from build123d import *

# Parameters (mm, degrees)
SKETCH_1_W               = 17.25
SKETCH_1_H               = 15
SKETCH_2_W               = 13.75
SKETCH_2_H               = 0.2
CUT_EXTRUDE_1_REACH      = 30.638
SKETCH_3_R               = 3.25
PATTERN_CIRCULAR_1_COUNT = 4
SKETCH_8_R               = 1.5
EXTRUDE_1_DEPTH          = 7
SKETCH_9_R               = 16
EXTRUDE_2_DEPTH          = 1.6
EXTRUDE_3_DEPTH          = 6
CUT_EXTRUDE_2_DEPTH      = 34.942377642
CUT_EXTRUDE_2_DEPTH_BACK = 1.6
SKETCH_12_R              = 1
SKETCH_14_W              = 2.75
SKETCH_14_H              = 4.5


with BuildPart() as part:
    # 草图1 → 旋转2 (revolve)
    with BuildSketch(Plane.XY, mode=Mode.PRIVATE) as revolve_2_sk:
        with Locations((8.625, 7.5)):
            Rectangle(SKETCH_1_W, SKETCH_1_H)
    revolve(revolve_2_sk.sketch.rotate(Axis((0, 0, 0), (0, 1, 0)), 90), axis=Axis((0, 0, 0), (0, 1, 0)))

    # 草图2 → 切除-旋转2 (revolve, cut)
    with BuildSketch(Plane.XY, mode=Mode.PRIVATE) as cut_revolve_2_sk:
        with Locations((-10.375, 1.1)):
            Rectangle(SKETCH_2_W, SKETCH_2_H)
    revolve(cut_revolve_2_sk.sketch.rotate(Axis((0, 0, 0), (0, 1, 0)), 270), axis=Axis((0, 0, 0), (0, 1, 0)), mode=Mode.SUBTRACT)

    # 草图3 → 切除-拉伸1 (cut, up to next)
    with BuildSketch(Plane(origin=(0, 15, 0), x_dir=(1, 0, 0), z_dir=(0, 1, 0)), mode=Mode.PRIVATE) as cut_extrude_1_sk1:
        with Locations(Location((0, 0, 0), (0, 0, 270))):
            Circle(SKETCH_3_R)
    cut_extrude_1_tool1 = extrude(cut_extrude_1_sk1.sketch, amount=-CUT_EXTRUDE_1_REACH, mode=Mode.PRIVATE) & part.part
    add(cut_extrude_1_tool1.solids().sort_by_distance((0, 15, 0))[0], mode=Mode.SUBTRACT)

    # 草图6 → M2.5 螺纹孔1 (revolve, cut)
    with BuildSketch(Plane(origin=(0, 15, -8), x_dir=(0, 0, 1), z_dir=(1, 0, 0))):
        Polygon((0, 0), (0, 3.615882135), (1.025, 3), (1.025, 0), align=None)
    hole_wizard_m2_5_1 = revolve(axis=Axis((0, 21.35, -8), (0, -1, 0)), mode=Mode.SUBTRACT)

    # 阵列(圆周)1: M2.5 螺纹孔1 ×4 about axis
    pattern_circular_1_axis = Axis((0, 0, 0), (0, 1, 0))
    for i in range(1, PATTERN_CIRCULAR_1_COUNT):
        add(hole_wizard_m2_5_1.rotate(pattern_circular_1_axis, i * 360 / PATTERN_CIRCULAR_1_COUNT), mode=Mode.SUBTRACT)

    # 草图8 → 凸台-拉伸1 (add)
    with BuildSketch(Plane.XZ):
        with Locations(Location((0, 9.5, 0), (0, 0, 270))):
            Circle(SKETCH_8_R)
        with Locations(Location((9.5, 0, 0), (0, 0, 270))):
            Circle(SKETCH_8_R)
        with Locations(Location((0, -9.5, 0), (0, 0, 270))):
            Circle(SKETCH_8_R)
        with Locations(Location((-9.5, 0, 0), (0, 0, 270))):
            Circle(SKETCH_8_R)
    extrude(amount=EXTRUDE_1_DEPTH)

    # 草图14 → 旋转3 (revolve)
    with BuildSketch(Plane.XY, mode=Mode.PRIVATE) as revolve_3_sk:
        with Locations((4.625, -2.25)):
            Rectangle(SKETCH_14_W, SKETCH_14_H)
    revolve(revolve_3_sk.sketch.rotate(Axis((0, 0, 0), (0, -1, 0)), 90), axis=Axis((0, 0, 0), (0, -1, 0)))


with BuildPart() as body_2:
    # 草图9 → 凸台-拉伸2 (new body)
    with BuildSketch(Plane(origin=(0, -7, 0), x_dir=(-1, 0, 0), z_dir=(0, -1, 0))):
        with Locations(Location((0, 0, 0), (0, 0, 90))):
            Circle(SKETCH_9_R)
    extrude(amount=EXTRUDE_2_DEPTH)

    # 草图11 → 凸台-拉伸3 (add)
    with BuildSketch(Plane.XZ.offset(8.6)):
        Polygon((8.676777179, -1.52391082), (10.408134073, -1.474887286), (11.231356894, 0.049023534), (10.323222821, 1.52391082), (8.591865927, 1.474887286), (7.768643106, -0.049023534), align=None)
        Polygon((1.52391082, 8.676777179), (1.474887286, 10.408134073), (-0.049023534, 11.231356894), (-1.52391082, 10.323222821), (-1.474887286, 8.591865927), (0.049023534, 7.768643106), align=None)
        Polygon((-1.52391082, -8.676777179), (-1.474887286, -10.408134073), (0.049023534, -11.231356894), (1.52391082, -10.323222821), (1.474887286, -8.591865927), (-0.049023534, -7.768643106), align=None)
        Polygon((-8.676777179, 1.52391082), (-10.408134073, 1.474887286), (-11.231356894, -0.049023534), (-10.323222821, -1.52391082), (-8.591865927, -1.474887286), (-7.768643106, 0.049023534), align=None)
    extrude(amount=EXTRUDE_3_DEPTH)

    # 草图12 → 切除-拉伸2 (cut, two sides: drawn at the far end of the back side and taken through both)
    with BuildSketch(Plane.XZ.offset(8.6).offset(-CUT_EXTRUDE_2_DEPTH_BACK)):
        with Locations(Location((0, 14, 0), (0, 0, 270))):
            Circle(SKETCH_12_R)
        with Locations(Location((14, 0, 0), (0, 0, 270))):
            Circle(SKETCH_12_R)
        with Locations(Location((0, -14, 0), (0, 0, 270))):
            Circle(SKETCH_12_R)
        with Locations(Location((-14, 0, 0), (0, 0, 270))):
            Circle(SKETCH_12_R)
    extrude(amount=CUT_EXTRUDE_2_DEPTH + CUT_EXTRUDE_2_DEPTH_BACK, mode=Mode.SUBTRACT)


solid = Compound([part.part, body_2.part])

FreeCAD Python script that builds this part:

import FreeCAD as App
import Part
import Sketcher

V = App.Vector
Q = App.Units.Quantity

doc = App.newDocument("Part")
params = doc.addObject("Spreadsheet::Sheet", "Params")
for row, (alias, value) in enumerate([
    ("sketch1_height", "15 mm"),
    ("sketch1_width", "17.25 mm"),
    ("revolution_angle", "360 deg"),
    ("sketch2_height", "0.2 mm"),
    ("sketch2_width", "13.75 mm"),
    ("groove_angle", "360 deg"),
    ("sketch3_diameter", "6.5 mm"),
    ("sketch4_width", "3 mm"),
    ("groove2_angle", "360 deg"),
    ("sketch5_diameter", "3 mm"),
    ("pad1_length", "7 mm"),
    ("sketch6_height", "4.5 mm"),
    ("sketch6_width", "2.75 mm"),
    ("revolution2_angle", "360 deg"),
    ("sketch7_diameter", "32 mm"),
    ("pad2_length", "1.6 mm"),
    ("pad3_length", "6 mm"),
    ("sketch9_diameter", "2 mm"),
], start=1):
    params.set(f"A{row}", alias)
    params.set(f"B{row}", "=" + value)
    params.setAlias(f"B{row}", alias)

body = doc.addObject("PartDesign::Body", "Body")

# Sketch on XY plane
sketch1 = body.newObject("Sketcher::SketchObject", "Sketch")
sketch1.AttachmentSupport = (doc.getObject("XY_Plane"), [""])
sketch1.MapMode = "FlatFace"
sketch1.addGeometry([
    Part.LineSegment(V(0, 15, 0), V(0, 0, 0)),
    Part.LineSegment(V(0, 0, 0), V(17.25, 0, 0)),
    Part.LineSegment(V(17.25, 0, 0), V(17.25, 15, 0)),
    Part.LineSegment(V(17.25, 15, 0), V(0, 15, 0)),
], False)
sketch1.addConstraint([
    Sketcher.Constraint("Coincident", 0, 2, 1, 1),
    Sketcher.Constraint("Coincident", 1, 2, 2, 1),
    Sketcher.Constraint("Coincident", 2, 2, 3, 1),
    Sketcher.Constraint("Coincident", 3, 2, 0, 1),
    Sketcher.Constraint("Vertical", 0),
    Sketcher.Constraint("Horizontal", 1),
    Sketcher.Constraint("Vertical", 2),
    Sketcher.Constraint("Horizontal", 3),
    Sketcher.Constraint("Coincident", 0, 2, -1, 1),
    Sketcher.Constraint("DistanceY", 0, 2, 0, 1, 15.0),
    Sketcher.Constraint("DistanceX", 1, 1, 1, 2, 17.25),
])
sketch1.setExpression("Constraints[9]", "Params.sketch1_height")
sketch1.setExpression("Constraints[10]", "Params.sketch1_width")
revolution = body.newObject("PartDesign::Revolution", "Revolution")
revolution.Profile = sketch1
revolution.ReferenceAxis = (sketch1, ["V_Axis"])
revolution.setExpression("Angle", "Params.revolution_angle")

# Sketch on XY plane
sketch2 = body.newObject("Sketcher::SketchObject", "Sketch001")
sketch2.AttachmentSupport = (doc.getObject("XY_Plane"), [""])
sketch2.MapMode = "FlatFace"
sketch2.addGeometry([
    Part.LineSegment(V(-17.25, 1.2, 0), V(-17.25, 1, 0)),
    Part.LineSegment(V(-17.25, 1, 0), V(-3.5, 1, 0)),
    Part.LineSegment(V(-3.5, 1, 0), V(-3.5, 1.2, 0)),
    Part.LineSegment(V(-3.5, 1.2, 0), V(-17.25, 1.2, 0)),
], False)
sketch2.addConstraint([
    Sketcher.Constraint("Coincident", 0, 2, 1, 1),
    Sketcher.Constraint("Coincident", 1, 2, 2, 1),
    Sketcher.Constraint("Coincident", 2, 2, 3, 1),
    Sketcher.Constraint("Coincident", 3, 2, 0, 1),
    Sketcher.Constraint("Vertical", 0),
    Sketcher.Constraint("Horizontal", 1),
    Sketcher.Constraint("Vertical", 2),
    Sketcher.Constraint("Horizontal", 3),
    Sketcher.Constraint("DistanceY", 0, 2, 0, 1, 0.2),
    Sketcher.Constraint("DistanceY", -1, 1, 0, 2, 1.0),
    Sketcher.Constraint("DistanceX", 1, 1, 1, 2, 13.75),
    Sketcher.Constraint("DistanceX", 1, 2, -1, 1, 3.5),
])
sketch2.setExpression("Constraints[8]", "Params.sketch2_height")
sketch2.setExpression("Constraints[10]", "Params.sketch2_width")
groove = body.newObject("PartDesign::Groove", "Groove")
groove.Profile = sketch2
groove.ReferenceAxis = (sketch2, ["V_Axis"])
groove.setExpression("Angle", "Params.groove_angle")

# Sketch on XZ plane
sketch3 = body.newObject("Sketcher::SketchObject", "Sketch002")
sketch3.AttachmentSupport = (doc.getObject("XZ_Plane"), [""])
sketch3.MapMode = "FlatFace"
sketch3.AttachmentOffset = App.Placement(V(0, 0, -15), App.Rotation())
sketch3.addGeometry(Part.Circle(V(0, 0, 0), V(0, 0, 1), 3.25), False)
sketch3.addConstraint([
    Sketcher.Constraint("Coincident", 0, 3, -1, 1),
    Sketcher.Constraint("Diameter", 0, 6.5),
])
sketch3.setExpression("Constraints[1]", "Params.sketch3_diameter")
pocket1 = body.newObject("PartDesign::Pocket", "Pocket")
pocket1.Profile = sketch3
pocket1.Type = "UpToFirst"
pocket1.Reversed = True

# Sketch on YZ plane
sketch4 = body.newObject("Sketcher::SketchObject", "Sketch003")
sketch4.AttachmentSupport = (doc.getObject("YZ_Plane"), [""])
sketch4.MapMode = "FlatFace"
sketch4.addGeometry([
    Part.LineSegment(V(11.384118, -8, 0), V(15, -8, 0)),
    Part.LineSegment(V(15, -8, 0), V(15, -6.975, 0)),
    Part.LineSegment(V(15, -6.975, 0), V(12, -6.975, 0)),
    Part.LineSegment(V(12, -6.975, 0), V(11.384118, -8, 0)),
], False)
sketch4.addGeometry(Part.LineSegment(V(15, -8, 0), V(11.384118, -8, 0)), True)  # axis
sketch4.addConstraint([
    Sketcher.Constraint("Coincident", 0, 2, 1, 1),
    Sketcher.Constraint("Coincident", 1, 2, 2, 1),
    Sketcher.Constraint("Coincident", 2, 2, 3, 1),
    Sketcher.Constraint("Coincident", 3, 2, 0, 1),
    Sketcher.Constraint("Horizontal", 0),
    Sketcher.Constraint("Vertical", 1),
    Sketcher.Constraint("Horizontal", 2),
    Sketcher.Constraint("Horizontal", 4),
    Sketcher.Constraint("Coincident", 4, 1, 0, 2),
    Sketcher.Constraint("Equal", 0, 4),
    Sketcher.Constraint("DistanceX", 2, 2, 2, 1, 3.0),
    Sketcher.Constraint("Angle", 3, Q("-121 deg")),
    Sketcher.Constraint("DistanceX", -1, 1, 0, 2, 15.0),
    Sketcher.Constraint("DistanceY", 0, 2, -1, 1, 8.0),
    Sketcher.Constraint("DistanceY", 1, 1, 1, 2, 1.025),
])
sketch4.setExpression("Constraints[10]", "Params.sketch4_width")
groove2 = body.newObject("PartDesign::Groove", "Groove001")
groove2.Profile = sketch4
groove2.ReferenceAxis = (sketch4, ["Axis0"])
groove2.setExpression("Angle", "Params.groove2_angle")
doc.recompute()

polarpattern = body.newObject("PartDesign::PolarPattern", "PolarPattern")
polarpattern.Originals = [groove2]
polarpattern.Axis = (doc.getObject("Y_Axis"), [""])
polarpattern.Angle = 360
polarpattern.Occurrences = 4
body.Tip = polarpattern

# Sketch on XZ plane
sketch5 = body.newObject("Sketcher::SketchObject", "Sketch004")
sketch5.AttachmentSupport = (doc.getObject("XZ_Plane"), [""])
sketch5.MapMode = "FlatFace"
sketch5.addGeometry([
    Part.Circle(V(0, 9.5, 0), V(0, 0, 1), 1.5),
    Part.Circle(V(9.5, 0, 0), V(0, 0, 1), 1.5),
    Part.Circle(V(0, -9.5, 0), V(0, 0, 1), 1.5),
    Part.Circle(V(-9.5, 0, 0), V(0, 0, 1), 1.5),
], False)
sketch5.addConstraint([
    Sketcher.Constraint("Equal", 0, 1),
    Sketcher.Constraint("Equal", 1, 2),
    Sketcher.Constraint("Equal", 2, 3),
    Sketcher.Constraint("Symmetric", 0, 3, 2, 3, -1, 1),
    Sketcher.Constraint("Symmetric", 1, 3, 3, 3, -1, 1),
    Sketcher.Constraint("PointOnObject", 0, 3, -2),
    Sketcher.Constraint("PointOnObject", 1, 3, -1),
    Sketcher.Constraint("Diameter", 0, 3.0),
    Sketcher.Constraint("DistanceY", 2, 3, 0, 3, 19.0),
    Sketcher.Constraint("DistanceX", 3, 3, 1, 3, 19.0),
])
sketch5.setExpression("Constraints[7]", "Params.sketch5_diameter")
pad1 = body.newObject("PartDesign::Pad", "Pad")
pad1.Profile = sketch5
pad1.setExpression("Length", "Params.pad1_length")

# Sketch on XY plane
sketch6 = body.newObject("Sketcher::SketchObject", "Sketch005")
sketch6.AttachmentSupport = (doc.getObject("XY_Plane"), [""])
sketch6.MapMode = "FlatFace"
sketch6.addGeometry([
    Part.LineSegment(V(3.25, 0, 0), V(3.25, -4.5, 0)),
    Part.LineSegment(V(3.25, -4.5, 0), V(6, -4.5, 0)),
    Part.LineSegment(V(6, -4.5, 0), V(6, 0, 0)),
    Part.LineSegment(V(6, 0, 0), V(3.25, 0, 0)),
], False)
sketch6.addConstraint([
    Sketcher.Constraint("Coincident", 0, 2, 1, 1),
    Sketcher.Constraint("Coincident", 1, 2, 2, 1),
    Sketcher.Constraint("Coincident", 2, 2, 3, 1),
    Sketcher.Constraint("Coincident", 3, 2, 0, 1),
    Sketcher.Constraint("Vertical", 0),
    Sketcher.Constraint("Horizontal", 1),
    Sketcher.Constraint("Vertical", 2),
    Sketcher.Constraint("Horizontal", 3),
    Sketcher.Constraint("PointOnObject", 2, 2, -1),
    Sketcher.Constraint("DistanceY", 0, 2, 0, 1, 4.5),
    Sketcher.Constraint("DistanceX", -1, 1, 1, 2, 6.0),
    Sketcher.Constraint("DistanceX", 1, 1, 1, 2, 2.75),
])
sketch6.setExpression("Constraints[9]", "Params.sketch6_height")
sketch6.setExpression("Constraints[11]", "Params.sketch6_width")
revolution2 = body.newObject("PartDesign::Revolution", "Revolution001")
revolution2.Profile = sketch6
revolution2.ReferenceAxis = (sketch6, ["V_Axis"])
revolution2.setExpression("Angle", "Params.revolution2_angle")
body2 = doc.addObject("PartDesign::Body", "Body001")

# Sketch on XZ plane
sketch7 = body2.newObject("Sketcher::SketchObject", "Sketch006")
sketch7.AttachmentSupport = (doc.getObject("XZ_Plane001"), [""])
sketch7.MapMode = "FlatFace"
sketch7.AttachmentOffset = App.Placement(V(0, 0, 7), App.Rotation())
sketch7.addGeometry(Part.Circle(V(0, 0, 0), V(0, 0, 1), 16), False)
sketch7.addConstraint([
    Sketcher.Constraint("Coincident", 0, 3, -1, 1),
    Sketcher.Constraint("Diameter", 0, 32.0),
])
sketch7.setExpression("Constraints[1]", "Params.sketch7_diameter")
pad2 = body2.newObject("PartDesign::Pad", "Pad001")
pad2.Profile = sketch7
pad2.setExpression("Length", "Params.pad2_length")

# Sketch on XZ plane
sketch8 = body2.newObject("Sketcher::SketchObject", "Sketch007")
sketch8.AttachmentSupport = (doc.getObject("XZ_Plane001"), [""])
sketch8.MapMode = "FlatFace"
sketch8.AttachmentOffset = App.Placement(V(0, 0, 8.6), App.Rotation())
sketch8.addGeometry([
    Part.LineSegment(V(8.676777, -1.523911, 0), V(10.408134, -1.474887, 0)),  # 0
    Part.LineSegment(V(10.408134, -1.474887, 0), V(11.231357, 0.049024, 0)),  # 1
    Part.LineSegment(V(11.231357, 0.049024, 0), V(10.323223, 1.523911, 0)),  # 2
    Part.LineSegment(V(10.323223, 1.523911, 0), V(8.591866, 1.474887, 0)),  # 3
    Part.LineSegment(V(8.591866, 1.474887, 0), V(7.768643, -0.049024, 0)),  # 4
    Part.LineSegment(V(7.768643, -0.049024, 0), V(8.676777, -1.523911, 0)),  # 5
    Part.LineSegment(V(1.523911, 8.676777, 0), V(1.474887, 10.408134, 0)),  # 6
    Part.LineSegment(V(1.474887, 10.408134, 0), V(-0.049024, 11.231357, 0)),  # 7
    Part.LineSegment(V(-0.049024, 11.231357, 0), V(-1.523911, 10.323223, 0)),  # 8
    Part.LineSegment(V(-1.523911, 10.323223, 0), V(-1.474887, 8.591866, 0)),  # 9
    Part.LineSegment(V(-1.474887, 8.591866, 0), V(0.049024, 7.768643, 0)),  # 10
    Part.LineSegment(V(0.049024, 7.768643, 0), V(1.523911, 8.676777, 0)),  # 11
    Part.LineSegment(V(-1.523911, -8.676777, 0), V(-1.474887, -10.408134, 0)),  # 12
    Part.LineSegment(V(-1.474887, -10.408134, 0), V(0.049024, -11.231357, 0)),  # 13
    Part.LineSegment(V(0.049024, -11.231357, 0), V(1.523911, -10.323223, 0)),  # 14
    Part.LineSegment(V(1.523911, -10.323223, 0), V(1.474887, -8.591866, 0)),  # 15
    Part.LineSegment(V(1.474887, -8.591866, 0), V(-0.049024, -7.768643, 0)),  # 16
    Part.LineSegment(V(-0.049024, -7.768643, 0), V(-1.523911, -8.676777, 0)),  # 17
    Part.LineSegment(V(-8.676777, 1.523911, 0), V(-10.408134, 1.474887, 0)),  # 18
    Part.LineSegment(V(-10.408134, 1.474887, 0), V(-11.231357, -0.049024, 0)),  # 19
    Part.LineSegment(V(-11.231357, -0.049024, 0), V(-10.323223, -1.523911, 0)),  # 20
    Part.LineSegment(V(-10.323223, -1.523911, 0), V(-8.591866, -1.474887, 0)),  # 21
    Part.LineSegment(V(-8.591866, -1.474887, 0), V(-7.768643, 0.049024, 0)),  # 22
    Part.LineSegment(V(-7.768643, 0.049024, 0), V(-8.676777, 1.523911, 0)),  # 23
], False)
sketch8.addConstraint([
    Sketcher.Constraint("Coincident", 0, 2, 1, 1),
    Sketcher.Constraint("Coincident", 1, 2, 2, 1),
    Sketcher.Constraint("Coincident", 2, 2, 3, 1),
    Sketcher.Constraint("Coincident", 3, 2, 4, 1),
    Sketcher.Constraint("Coincident", 4, 2, 5, 1),
    Sketcher.Constraint("Coincident", 5, 2, 0, 1),
    Sketcher.Constraint("Coincident", 6, 2, 7, 1),
    Sketcher.Constraint("Coincident", 7, 2, 8, 1),
    Sketcher.Constraint("Coincident", 8, 2, 9, 1),
    Sketcher.Constraint("Coincident", 9, 2, 10, 1),
    Sketcher.Constraint("Coincident", 10, 2, 11, 1),
    Sketcher.Constraint("Coincident", 11, 2, 6, 1),
    Sketcher.Constraint("Coincident", 12, 2, 13, 1),
    Sketcher.Constraint("Coincident", 13, 2, 14, 1),
    Sketcher.Constraint("Coincident", 14, 2, 15, 1),
    Sketcher.Constraint("Coincident", 15, 2, 16, 1),
    Sketcher.Constraint("Coincident", 16, 2, 17, 1),
    Sketcher.Constraint("Coincident", 17, 2, 12, 1),
    Sketcher.Constraint("Coincident", 18, 2, 19, 1),
    Sketcher.Constraint("Coincident", 19, 2, 20, 1),
    Sketcher.Constraint("Coincident", 20, 2, 21, 1),
    Sketcher.Constraint("Coincident", 21, 2, 22, 1),
    Sketcher.Constraint("Coincident", 22, 2, 23, 1),
    Sketcher.Constraint("Coincident", 23, 2, 18, 1),
    Sketcher.Constraint("Symmetric", 6, 2, 12, 2, -1, 1),
    Sketcher.Constraint("Symmetric", 7, 2, 13, 2, -1, 1),
    Sketcher.Constraint("Symmetric", 8, 2, 14, 2, -1, 1),
    Sketcher.Constraint("Symmetric", 9, 2, 15, 2, -1, 1),
    Sketcher.Constraint("Symmetric", 10, 2, 16, 2, -1, 1),
    Sketcher.Constraint("Symmetric", 11, 2, 17, 2, -1, 1),
    Sketcher.Constraint("Symmetric", 0, 2, 18, 2, -1, 1),
    Sketcher.Constraint("Symmetric", 1, 2, 19, 2, -1, 1),
    Sketcher.Constraint("Symmetric", 2, 2, 20, 2, -1, 1),
    Sketcher.Constraint("Symmetric", 3, 2, 21, 2, -1, 1),
    Sketcher.Constraint("Symmetric", 4, 2, 22, 2, -1, 1),
    Sketcher.Constraint("Symmetric", 5, 2, 23, 2, -1, 1),
    Sketcher.Constraint("Parallel", 0, 3),
    Sketcher.Constraint("Parallel", 1, 4),
    Sketcher.Constraint("Parallel", 2, 5),
    Sketcher.Constraint("Perpendicular", 3, 6),
    Sketcher.Constraint("Perpendicular", 4, 7),
    Sketcher.Constraint("Perpendicular", 5, 8),
    Sketcher.Constraint("Parallel", 6, 9),
    Sketcher.Constraint("Parallel", 7, 10),
    Sketcher.Constraint("Parallel", 8, 11),
    Sketcher.Constraint("Horizontal", 3, 2, 18, 2),
    Sketcher.Constraint("Horizontal", 4, 2, 19, 2),
    Sketcher.Constraint("Vertical", 9, 2, 12, 2),
    Sketcher.Constraint("Vertical", 10, 2, 13, 2),
    Sketcher.Constraint("Equal", 0, 1),
    Sketcher.Constraint("Equal", 1, 2),
    Sketcher.Constraint("Equal", 5, 6),
    Sketcher.Constraint("Equal", 6, 7),
    Sketcher.Constraint("Equal", 7, 8),
    Sketcher.Constraint("DistanceY", 0, 2, 2, 2, 2.998798),
    Sketcher.Constraint("DistanceX", 7, 2, 5, 2, 8.725801),
    Sketcher.Constraint("DistanceY", 14, 2, 4, 2, 10.274199),
    Sketcher.Constraint("DistanceX", 20, 2, 16, 2, 10.274199),
    Sketcher.Constraint("Distance", 0, 1.732051),
    Sketcher.Constraint("DistanceY", -1, 1, 2, 2, 1.523911),
])
pad3 = body2.newObject("PartDesign::Pad", "Pad002")
pad3.Profile = sketch8
pad3.setExpression("Length", "Params.pad3_length")

# Sketch on XZ plane
sketch9 = body2.newObject("Sketcher::SketchObject", "Sketch008")
sketch9.AttachmentSupport = (doc.getObject("XZ_Plane001"), [""])
sketch9.MapMode = "FlatFace"
sketch9.AttachmentOffset = App.Placement(V(0, 0, 8.6), App.Rotation())
sketch9.addGeometry([
    Part.Circle(V(0, 14, 0), V(0, 0, 1), 1),
    Part.Circle(V(14, 0, 0), V(0, 0, 1), 1),
    Part.Circle(V(0, -14, 0), V(0, 0, 1), 1),
    Part.Circle(V(-14, 0, 0), V(0, 0, 1), 1),
], False)
sketch9.addConstraint([
    Sketcher.Constraint("Equal", 0, 1),
    Sketcher.Constraint("Equal", 1, 2),
    Sketcher.Constraint("Equal", 2, 3),
    Sketcher.Constraint("Symmetric", 0, 3, 2, 3, -1, 1),
    Sketcher.Constraint("Symmetric", 1, 3, 3, 3, -1, 1),
    Sketcher.Constraint("PointOnObject", 0, 3, -2),
    Sketcher.Constraint("PointOnObject", 1, 3, -1),
    Sketcher.Constraint("Diameter", 0, 2.0),
    Sketcher.Constraint("DistanceY", -1, 1, 0, 3, 14.0),
    Sketcher.Constraint("DistanceX", -1, 1, 1, 3, 14.0),
])
sketch9.setExpression("Constraints[7]", "Params.sketch9_diameter")
pocket2 = body2.newObject("PartDesign::Pocket", "Pocket001")
pocket2.Profile = sketch9
pocket2.Type = "ThroughAll"
pocket2.Midplane = True

doc.recompute()
